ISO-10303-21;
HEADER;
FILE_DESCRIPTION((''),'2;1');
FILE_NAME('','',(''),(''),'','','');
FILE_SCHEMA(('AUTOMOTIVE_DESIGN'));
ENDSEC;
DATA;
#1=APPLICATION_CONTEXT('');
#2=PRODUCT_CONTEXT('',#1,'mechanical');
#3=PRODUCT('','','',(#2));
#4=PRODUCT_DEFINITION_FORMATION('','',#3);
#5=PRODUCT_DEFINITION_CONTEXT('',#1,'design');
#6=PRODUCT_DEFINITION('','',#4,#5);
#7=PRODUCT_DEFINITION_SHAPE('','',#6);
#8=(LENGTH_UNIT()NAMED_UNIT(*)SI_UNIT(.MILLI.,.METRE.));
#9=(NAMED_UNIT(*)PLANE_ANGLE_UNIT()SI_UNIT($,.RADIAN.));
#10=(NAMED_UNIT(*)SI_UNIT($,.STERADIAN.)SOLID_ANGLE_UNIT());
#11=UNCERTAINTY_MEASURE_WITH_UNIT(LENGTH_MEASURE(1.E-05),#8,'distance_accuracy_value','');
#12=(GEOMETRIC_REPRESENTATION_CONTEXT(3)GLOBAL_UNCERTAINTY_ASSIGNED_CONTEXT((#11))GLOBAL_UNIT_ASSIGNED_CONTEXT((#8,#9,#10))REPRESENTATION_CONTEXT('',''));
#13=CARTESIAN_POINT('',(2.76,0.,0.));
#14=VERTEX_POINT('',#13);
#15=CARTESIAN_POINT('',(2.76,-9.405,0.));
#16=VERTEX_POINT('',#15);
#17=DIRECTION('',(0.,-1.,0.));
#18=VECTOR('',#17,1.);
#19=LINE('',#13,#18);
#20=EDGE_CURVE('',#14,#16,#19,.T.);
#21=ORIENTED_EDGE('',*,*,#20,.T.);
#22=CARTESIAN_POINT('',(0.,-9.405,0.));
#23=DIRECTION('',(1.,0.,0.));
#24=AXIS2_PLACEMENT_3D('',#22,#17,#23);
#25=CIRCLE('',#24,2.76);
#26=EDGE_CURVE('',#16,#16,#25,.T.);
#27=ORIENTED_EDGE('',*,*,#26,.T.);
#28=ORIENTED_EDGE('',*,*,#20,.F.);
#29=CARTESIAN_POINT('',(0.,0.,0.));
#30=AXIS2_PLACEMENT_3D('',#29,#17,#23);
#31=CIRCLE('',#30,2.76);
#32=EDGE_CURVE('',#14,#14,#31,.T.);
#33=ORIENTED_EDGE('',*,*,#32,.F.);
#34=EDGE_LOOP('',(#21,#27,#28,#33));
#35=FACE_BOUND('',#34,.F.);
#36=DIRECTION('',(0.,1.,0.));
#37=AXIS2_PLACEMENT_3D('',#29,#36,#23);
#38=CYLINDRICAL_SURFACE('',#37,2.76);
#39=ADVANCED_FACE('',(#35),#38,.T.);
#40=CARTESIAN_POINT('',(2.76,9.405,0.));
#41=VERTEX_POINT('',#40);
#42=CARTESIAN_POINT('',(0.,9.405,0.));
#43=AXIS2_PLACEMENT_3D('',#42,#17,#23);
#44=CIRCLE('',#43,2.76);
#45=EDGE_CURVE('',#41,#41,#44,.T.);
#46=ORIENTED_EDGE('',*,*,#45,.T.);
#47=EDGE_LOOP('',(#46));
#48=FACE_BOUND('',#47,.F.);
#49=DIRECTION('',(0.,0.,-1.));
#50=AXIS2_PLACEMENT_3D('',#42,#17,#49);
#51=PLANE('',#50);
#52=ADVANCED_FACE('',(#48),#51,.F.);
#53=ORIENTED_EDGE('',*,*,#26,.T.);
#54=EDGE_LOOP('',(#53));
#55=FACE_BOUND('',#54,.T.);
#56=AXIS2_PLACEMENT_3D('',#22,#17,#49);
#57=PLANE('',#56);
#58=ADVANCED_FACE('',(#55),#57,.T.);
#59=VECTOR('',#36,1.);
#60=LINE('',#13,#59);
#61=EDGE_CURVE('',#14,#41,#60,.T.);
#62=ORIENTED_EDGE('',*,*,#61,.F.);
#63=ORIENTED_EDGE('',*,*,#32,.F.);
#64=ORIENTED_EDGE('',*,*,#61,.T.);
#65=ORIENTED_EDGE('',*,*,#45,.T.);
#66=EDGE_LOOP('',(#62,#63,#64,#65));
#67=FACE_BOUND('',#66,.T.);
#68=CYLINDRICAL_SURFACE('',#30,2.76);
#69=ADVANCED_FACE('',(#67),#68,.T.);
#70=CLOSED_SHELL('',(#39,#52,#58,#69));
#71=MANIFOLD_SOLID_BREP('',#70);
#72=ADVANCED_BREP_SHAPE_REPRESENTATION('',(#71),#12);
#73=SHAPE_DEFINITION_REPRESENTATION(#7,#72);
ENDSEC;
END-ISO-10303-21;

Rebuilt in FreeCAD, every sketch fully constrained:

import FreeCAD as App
import Part
import Sketcher

V = App.Vector
Q = App.Units.Quantity

doc = App.newDocument("Part")
params = doc.addObject("Spreadsheet::Sheet", "Params")
for row, (alias, value) in enumerate([
    ("sketch1_diameter", "5.52 mm"),
    ("pad1_length", "18.81 mm"),
], start=1):
    params.set(f"A{row}", alias)
    params.set(f"B{row}", "=" + value)
    params.setAlias(f"B{row}", alias)

body = doc.addObject("PartDesign::Body", "Body")

sketch1 = doc.addObject("Sketcher::SketchObject", "Sketch")
body.addObject(sketch1)
sketch1.AttachmentSupport = (doc.XZ_Plane, [""])
sketch1.MapMode = "FlatFace"
sketch1.addGeometry(Part.Circle(V(0, 0, 0), V(0, 0, 1), 2.8), False)
sketch1.addConstraint([
    Sketcher.Constraint("Coincident", 0, 3, -1, 1),
    Sketcher.Constraint("Diameter", 0, Q("5.52 mm")),
])
sketch1.setExpression("Constraints[1]", "Params.sketch1_diameter")
pad1 = doc.addObject("PartDesign::Pad", "Pad")
body.addObject(pad1)
pad1.Profile = sketch1
pad1.setExpression("Length", "Params.pad1_length")
pad1.Midplane = True

doc.recompute()
